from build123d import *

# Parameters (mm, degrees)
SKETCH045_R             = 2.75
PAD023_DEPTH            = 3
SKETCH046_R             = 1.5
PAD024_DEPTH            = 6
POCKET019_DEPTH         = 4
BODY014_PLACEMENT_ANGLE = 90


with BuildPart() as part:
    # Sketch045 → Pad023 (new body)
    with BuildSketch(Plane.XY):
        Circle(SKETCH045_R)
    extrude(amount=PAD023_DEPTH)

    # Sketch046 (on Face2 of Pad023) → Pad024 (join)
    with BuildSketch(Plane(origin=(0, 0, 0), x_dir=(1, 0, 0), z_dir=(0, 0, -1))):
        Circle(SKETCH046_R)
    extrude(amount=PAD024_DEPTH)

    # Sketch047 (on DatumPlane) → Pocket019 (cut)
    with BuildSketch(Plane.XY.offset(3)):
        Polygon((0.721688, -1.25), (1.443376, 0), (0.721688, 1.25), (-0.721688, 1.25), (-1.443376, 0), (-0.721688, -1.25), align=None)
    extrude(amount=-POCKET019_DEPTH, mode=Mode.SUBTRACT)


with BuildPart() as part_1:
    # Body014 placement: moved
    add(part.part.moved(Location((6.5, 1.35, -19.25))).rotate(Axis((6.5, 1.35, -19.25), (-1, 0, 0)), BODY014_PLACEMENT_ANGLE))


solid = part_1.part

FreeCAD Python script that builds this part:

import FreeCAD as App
import Part
import Sketcher
Q = App.Units.Quantity

doc = App.newDocument("Part")
params = doc.addObject("Spreadsheet::Sheet", "Params")
for row, (alias, value) in enumerate([
    ("sketch1_diameter", "5.5 mm"),
    ("pad1_length", "3 mm"),
    ("sketch2_diameter", "3 mm"),
    ("pad2_length", "6 mm"),
    ("pocket1_length", "4 mm"),
], start=1):
    params.set(f"A{row}", alias)
    params.set(f"B{row}", "=" + value)
    params.setAlias(f"B{row}", alias)

body = doc.addObject("PartDesign::Body", "Body")

sketch1 = doc.addObject("Sketcher::SketchObject", "Sketch")
body.addObject(sketch1)
sketch1.AttachmentSupport = (doc.XY_Plane, [""])
sketch1.MapMode = "FlatFace"
sketch1.addGeometry(Part.Circle(App.Vector(0, 0, 0), App.Vector(0, 0, 1), 2.8), False)
sketch1.addConstraint([
    Sketcher.Constraint("Coincident", 0, 3, -1, 1),
    Sketcher.Constraint("Diameter", 0, 5.5),
])
sketch1.setExpression("Constraints[1]", "Params.sketch1_diameter")
pad1 = doc.addObject("PartDesign::Pad", "Pad")
body.addObject(pad1)
pad1.Profile = sketch1
pad1.setExpression("Length", "Params.pad1_length")

sketch2 = doc.addObject("Sketcher::SketchObject", "Sketch001")
body.addObject(sketch2)
sketch2.AttachmentSupport = (doc.XY_Plane, [""])
sketch2.MapMode = "FlatFace"
sketch2.addGeometry(Part.Circle(App.Vector(0, 0, 0), App.Vector(0, 0, 1), 1.5), False)
sketch2.addConstraint([
    Sketcher.Constraint("Coincident", 0, 3, -1, 1),
    Sketcher.Constraint("Diameter", 0, 3.0),
])
sketch2.setExpression("Constraints[1]", "Params.sketch2_diameter")
pad2 = doc.addObject("PartDesign::Pad", "Pad001")
body.addObject(pad2)
pad2.Profile = sketch2
pad2.setExpression("Length", "Params.pad2_length")
pad2.Reversed = True

sketch3 = doc.addObject("Sketcher::SketchObject", "Sketch002")
body.addObject(sketch3)
sketch3.AttachmentSupport = (doc.XY_Plane, [""])
sketch3.MapMode = "FlatFace"
sketch3.AttachmentOffset = App.Placement(App.Vector(0, 0, 3), App.Rotation())
sketch3.addGeometry([
    Part.LineSegment(App.Vector(0.7, -1.2, 0), App.Vector(1.4, 0, 0)),
    Part.LineSegment(App.Vector(1.4, 0, 0), App.Vector(0.7, 1.2, 0)),
    Part.LineSegment(App.Vector(0.7, 1.2, 0), App.Vector(-0.7, 1.2, 0)),
    Part.LineSegment(App.Vector(-0.7, 1.2, 0), App.Vector(-1.4, 0, 0)),
    Part.LineSegment(App.Vector(-1.4, 0, 0), App.Vector(-0.7, -1.2, 0)),
    Part.LineSegment(App.Vector(-0.7, -1.2, 0), App.Vector(0.7, -1.2, 0)),
], False)
sketch3.addConstraint([
    Sketcher.Constraint("Coincident", 0, 2, 1, 1),
    Sketcher.Constraint("Coincident", 1, 2, 2, 1),
    Sketcher.Constraint("Coincident", 2, 2, 3, 1),
    Sketcher.Constraint("Coincident", 3, 2, 4, 1),
    Sketcher.Constraint("Coincident", 4, 2, 5, 1),
    Sketcher.Constraint("Coincident", 5, 2, 0, 1),
    Sketcher.Constraint("Horizontal", 2),
    Sketcher.Constraint("Horizontal", 5),
    Sketcher.Constraint("Symmetric", 0, 2, 3, 2, -1, 1),
    Sketcher.Constraint("Symmetric", 1, 2, 4, 2, -1, 1),
    Sketcher.Constraint("PointOnObject", 0, 2, -1),
    Sketcher.Constraint("Parallel", 0, 3),
    Sketcher.Constraint("Vertical", 2, 2, 4, 2),
    Sketcher.Constraint("Angle", 0, Q("59.999994 deg")),
    Sketcher.Constraint("DistanceY", 4, 2, 2, 2, 2.5),
    Sketcher.Constraint("DistanceX", 2, 2, 2, 1, 1.443376),
])
pocket1 = doc.addObject("PartDesign::Pocket", "Pocket")
body.addObject(pocket1)
pocket1.Profile = sketch3
pocket1.setExpression("Length", "Params.pocket1_length")
body2 = doc.addObject("PartDesign::Body", "Body001")
doc.recompute()

body.Placement = App.Placement(App.Vector(6.5, 1.35, -19.25), App.Rotation(App.Vector(-1, 0, 0), 90))
boolean = doc.addObject("PartDesign::Boolean", "Boolean")
body2.addObject(boolean)
boolean.Type = "Fuse"
boolean.addObjects([body])

doc.recompute()
